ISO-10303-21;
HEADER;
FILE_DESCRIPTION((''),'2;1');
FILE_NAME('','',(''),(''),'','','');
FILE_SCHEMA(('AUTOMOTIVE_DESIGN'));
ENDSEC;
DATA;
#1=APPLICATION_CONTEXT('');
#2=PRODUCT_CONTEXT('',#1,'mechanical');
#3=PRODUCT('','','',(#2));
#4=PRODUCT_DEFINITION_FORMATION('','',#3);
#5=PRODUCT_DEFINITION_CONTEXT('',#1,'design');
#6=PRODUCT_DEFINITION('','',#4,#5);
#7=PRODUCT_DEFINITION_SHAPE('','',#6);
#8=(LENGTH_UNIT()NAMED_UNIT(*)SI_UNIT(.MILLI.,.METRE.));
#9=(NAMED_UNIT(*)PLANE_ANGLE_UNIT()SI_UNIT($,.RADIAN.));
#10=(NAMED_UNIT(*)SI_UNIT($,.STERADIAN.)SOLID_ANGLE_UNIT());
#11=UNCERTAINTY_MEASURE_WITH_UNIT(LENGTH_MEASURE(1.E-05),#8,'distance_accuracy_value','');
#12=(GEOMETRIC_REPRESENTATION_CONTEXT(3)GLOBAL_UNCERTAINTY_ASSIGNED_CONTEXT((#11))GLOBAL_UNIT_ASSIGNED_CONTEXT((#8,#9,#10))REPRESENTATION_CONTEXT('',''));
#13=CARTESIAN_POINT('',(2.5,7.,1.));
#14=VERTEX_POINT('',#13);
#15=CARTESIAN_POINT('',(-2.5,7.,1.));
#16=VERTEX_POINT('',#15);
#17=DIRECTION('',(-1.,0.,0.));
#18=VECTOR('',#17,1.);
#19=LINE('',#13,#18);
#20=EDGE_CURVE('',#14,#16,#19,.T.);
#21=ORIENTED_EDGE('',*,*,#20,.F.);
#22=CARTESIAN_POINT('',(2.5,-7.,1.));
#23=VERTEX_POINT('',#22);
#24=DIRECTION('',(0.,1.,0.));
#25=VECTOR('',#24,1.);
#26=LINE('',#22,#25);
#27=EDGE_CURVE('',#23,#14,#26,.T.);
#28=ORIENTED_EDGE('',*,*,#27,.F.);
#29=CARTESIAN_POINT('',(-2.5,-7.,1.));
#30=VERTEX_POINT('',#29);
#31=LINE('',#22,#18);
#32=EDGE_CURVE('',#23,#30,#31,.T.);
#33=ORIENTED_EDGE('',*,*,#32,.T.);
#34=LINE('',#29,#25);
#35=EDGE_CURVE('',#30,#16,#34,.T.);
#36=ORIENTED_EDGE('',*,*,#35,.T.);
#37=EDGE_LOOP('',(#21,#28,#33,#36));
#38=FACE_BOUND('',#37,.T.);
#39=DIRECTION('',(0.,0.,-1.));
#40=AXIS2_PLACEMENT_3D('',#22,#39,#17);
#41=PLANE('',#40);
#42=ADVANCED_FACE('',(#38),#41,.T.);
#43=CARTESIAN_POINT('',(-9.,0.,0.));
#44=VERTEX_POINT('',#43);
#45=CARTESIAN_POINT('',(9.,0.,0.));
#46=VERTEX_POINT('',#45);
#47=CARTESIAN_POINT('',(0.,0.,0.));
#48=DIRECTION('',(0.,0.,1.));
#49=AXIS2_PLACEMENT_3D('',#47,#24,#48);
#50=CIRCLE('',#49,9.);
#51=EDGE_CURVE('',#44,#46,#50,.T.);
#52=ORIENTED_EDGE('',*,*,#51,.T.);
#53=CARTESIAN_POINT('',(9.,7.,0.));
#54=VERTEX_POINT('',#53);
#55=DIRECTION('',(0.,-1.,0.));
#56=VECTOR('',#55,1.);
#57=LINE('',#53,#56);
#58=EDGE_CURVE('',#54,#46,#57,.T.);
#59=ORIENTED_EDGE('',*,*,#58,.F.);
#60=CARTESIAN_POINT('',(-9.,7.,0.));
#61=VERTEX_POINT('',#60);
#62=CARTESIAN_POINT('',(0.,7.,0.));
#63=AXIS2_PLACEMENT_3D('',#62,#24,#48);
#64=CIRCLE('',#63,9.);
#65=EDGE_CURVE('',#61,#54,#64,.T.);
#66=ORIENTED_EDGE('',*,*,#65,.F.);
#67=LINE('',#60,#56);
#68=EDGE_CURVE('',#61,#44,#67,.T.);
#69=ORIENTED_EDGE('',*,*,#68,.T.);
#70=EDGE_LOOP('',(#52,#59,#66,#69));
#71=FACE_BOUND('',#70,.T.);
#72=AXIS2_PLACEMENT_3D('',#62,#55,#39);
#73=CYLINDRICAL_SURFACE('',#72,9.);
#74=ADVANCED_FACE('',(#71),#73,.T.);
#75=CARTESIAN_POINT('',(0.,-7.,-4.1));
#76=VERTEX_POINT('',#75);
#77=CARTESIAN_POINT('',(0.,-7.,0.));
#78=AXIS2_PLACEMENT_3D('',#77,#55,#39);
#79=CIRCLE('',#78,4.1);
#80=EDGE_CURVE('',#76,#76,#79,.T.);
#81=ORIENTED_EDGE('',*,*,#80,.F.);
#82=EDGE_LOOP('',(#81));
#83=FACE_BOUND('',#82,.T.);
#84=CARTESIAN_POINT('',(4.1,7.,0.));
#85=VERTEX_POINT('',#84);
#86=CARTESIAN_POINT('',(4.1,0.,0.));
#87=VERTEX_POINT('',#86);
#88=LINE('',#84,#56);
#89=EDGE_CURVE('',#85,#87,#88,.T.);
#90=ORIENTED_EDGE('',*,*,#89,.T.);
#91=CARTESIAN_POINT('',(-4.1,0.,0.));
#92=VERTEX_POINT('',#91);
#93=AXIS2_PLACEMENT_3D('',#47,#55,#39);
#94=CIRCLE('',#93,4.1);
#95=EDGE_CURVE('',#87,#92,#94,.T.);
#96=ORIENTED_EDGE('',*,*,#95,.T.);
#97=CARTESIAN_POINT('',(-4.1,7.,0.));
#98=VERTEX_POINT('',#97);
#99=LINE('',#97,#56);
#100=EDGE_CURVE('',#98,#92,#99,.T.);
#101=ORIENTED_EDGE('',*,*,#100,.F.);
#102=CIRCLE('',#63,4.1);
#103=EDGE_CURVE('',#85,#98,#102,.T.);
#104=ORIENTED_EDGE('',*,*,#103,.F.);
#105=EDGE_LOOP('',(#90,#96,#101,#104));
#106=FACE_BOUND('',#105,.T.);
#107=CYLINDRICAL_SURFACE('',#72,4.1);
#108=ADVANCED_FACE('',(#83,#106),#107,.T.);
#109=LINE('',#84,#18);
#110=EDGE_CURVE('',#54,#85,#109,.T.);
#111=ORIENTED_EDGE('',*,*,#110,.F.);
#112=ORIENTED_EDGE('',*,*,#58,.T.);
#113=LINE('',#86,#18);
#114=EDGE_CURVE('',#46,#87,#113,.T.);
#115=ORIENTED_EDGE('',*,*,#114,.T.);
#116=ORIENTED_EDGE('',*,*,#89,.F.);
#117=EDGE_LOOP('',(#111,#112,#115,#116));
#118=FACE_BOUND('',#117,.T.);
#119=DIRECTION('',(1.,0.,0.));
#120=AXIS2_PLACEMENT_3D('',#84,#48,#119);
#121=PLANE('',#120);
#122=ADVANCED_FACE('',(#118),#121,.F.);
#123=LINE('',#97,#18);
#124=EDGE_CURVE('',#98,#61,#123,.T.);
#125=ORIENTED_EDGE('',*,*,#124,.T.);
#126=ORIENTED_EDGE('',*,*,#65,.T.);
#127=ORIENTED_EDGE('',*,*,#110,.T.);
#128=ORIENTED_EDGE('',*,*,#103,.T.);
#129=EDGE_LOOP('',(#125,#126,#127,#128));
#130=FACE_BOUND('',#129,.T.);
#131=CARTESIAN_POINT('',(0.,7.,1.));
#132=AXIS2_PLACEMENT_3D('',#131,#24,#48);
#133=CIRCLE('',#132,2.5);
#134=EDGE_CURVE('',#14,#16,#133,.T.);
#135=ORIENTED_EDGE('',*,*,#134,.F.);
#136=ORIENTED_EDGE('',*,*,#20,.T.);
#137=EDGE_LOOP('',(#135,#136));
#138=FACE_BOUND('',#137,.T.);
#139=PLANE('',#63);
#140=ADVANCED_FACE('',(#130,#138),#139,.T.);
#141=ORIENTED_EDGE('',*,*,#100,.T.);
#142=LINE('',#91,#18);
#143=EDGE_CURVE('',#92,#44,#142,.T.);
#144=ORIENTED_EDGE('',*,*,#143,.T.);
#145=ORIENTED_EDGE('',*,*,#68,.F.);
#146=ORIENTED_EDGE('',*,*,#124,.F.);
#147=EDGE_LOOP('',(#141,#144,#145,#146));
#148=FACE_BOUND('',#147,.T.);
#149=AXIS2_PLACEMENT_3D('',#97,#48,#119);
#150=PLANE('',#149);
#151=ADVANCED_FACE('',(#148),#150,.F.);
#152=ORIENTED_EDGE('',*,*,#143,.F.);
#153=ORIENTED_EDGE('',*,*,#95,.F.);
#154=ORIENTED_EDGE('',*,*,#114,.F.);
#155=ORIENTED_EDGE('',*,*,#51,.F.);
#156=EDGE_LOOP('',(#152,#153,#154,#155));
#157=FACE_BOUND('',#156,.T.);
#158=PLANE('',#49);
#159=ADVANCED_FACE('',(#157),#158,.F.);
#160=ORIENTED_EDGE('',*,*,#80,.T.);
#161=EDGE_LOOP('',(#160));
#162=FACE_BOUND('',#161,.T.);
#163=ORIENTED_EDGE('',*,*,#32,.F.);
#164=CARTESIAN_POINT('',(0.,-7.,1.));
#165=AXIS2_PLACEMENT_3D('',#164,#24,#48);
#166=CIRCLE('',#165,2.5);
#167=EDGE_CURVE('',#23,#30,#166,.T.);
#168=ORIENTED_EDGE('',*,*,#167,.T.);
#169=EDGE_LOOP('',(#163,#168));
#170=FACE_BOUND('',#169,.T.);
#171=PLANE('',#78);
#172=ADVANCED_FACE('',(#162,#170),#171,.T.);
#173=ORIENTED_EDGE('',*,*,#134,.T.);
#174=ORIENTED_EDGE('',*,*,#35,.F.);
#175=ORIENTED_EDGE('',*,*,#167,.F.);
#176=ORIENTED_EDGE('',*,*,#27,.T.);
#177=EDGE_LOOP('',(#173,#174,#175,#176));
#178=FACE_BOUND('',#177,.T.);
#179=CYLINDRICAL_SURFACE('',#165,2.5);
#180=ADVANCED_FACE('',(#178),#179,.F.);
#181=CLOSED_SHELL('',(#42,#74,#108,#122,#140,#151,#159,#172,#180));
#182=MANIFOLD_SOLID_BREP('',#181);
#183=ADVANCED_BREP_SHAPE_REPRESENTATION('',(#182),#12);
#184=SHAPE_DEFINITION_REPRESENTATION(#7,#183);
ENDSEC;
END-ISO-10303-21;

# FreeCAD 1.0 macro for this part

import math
import FreeCAD as App
import Part
import Sketcher
from FreeCAD import Vector

doc = App.newDocument("Part")
body = doc.addObject("PartDesign::Body", "Body")

# Sketch on XZ plane
sketch1 = body.newObject("Sketcher::SketchObject", "Sketch")
sketch1.AttachmentSupport = (doc.getObject("XZ_Plane"), [""])
sketch1.MapMode = "FlatFace"
sketch1.addGeometry([
    Part.LineSegment(Vector(9, 0, 0), Vector(4.1, 0, 0)),
    Part.ArcOfCircle(Part.Circle(Vector(0, 0, 0), Vector(0, 0, 1), 4.1), math.radians(180), math.radians(360)),
    Part.LineSegment(Vector(-4.1, 0, 0), Vector(-9, 0, 0)),
    Part.ArcOfCircle(Part.Circle(Vector(0, 0, 0), Vector(0, 0, 1), 9), math.radians(0), math.radians(180)),
], False)
sketch1.addConstraint([
    Sketcher.Constraint("Coincident", 0, 2, 1, 2),
    Sketcher.Constraint("Coincident", 1, 1, 2, 1),
    Sketcher.Constraint("Coincident", 2, 2, 3, 2),
    Sketcher.Constraint("Coincident", 3, 1, 0, 1),
    Sketcher.Constraint("Horizontal", 0),
    Sketcher.Constraint("Horizontal", 2),
    Sketcher.Constraint("Coincident", 1, 3, -1, 1),
    Sketcher.Constraint("Coincident", 3, 3, -1, 1),
    Sketcher.Constraint("PointOnObject", 0, 2, -1),
    Sketcher.Constraint("PointOnObject", 1, 1, -1),
    Sketcher.Constraint("Radius", 3, 9.0),
    Sketcher.Constraint("Radius", 1, 4.1),
])
pad1 = body.newObject("PartDesign::Pad", "Pad")
pad1.Profile = sketch1
pad1.Length = 7
pad1.Reversed = True

# Sketch on XZ plane
sketch2 = body.newObject("Sketcher::SketchObject", "Sketch001")
sketch2.AttachmentSupport = (doc.getObject("XZ_Plane"), [""])
sketch2.MapMode = "FlatFace"
sketch2.addGeometry(Part.Circle(Vector(0, 0, 0), Vector(0, 0, 1), 4.1), False)
sketch2.addConstraint([
    Sketcher.Constraint("Coincident", 0, 3, -1, 1),
    Sketcher.Constraint("Diameter", 0, 8.2),
])
pad2 = body.newObject("PartDesign::Pad", "Pad001")
pad2.Profile = sketch2
pad2.Length = 7

# Sketch on XZ plane
sketch3 = body.newObject("Sketcher::SketchObject", "Sketch002")
sketch3.AttachmentSupport = (doc.getObject("XZ_Plane"), [""])
sketch3.MapMode = "FlatFace"
sketch3.AttachmentOffset = App.Placement(Vector(0, 0, -7), App.Rotation())
sketch3.addGeometry([
    Part.LineSegment(Vector(-2.5, 1, 0), Vector(2.5, 1, 0)),
    Part.ArcOfCircle(Part.Circle(Vector(0, 1, 0), Vector(0, 0, 1), 2.5), math.radians(180), math.radians(360)),
], False)
sketch3.addConstraint([
    Sketcher.Constraint("Coincident", 0, 1, 1, 1),
    Sketcher.Constraint("Coincident", 1, 2, 0, 2),
    Sketcher.Constraint("Horizontal", 0),
    Sketcher.Constraint("PointOnObject", 1, 3, -2),
    Sketcher.Constraint("Horizontal", 1, 3, 0, 1),
    Sketcher.Constraint("Radius", 1, 2.5),
    Sketcher.Constraint("DistanceY", -1, 1, 1, 3, 1.0),
])
pocket1 = body.newObject("PartDesign::Pocket", "Pocket")
pocket1.Profile = sketch3
pocket1.Type = "ThroughAll"
pocket1.Reversed = True

doc.recompute()
